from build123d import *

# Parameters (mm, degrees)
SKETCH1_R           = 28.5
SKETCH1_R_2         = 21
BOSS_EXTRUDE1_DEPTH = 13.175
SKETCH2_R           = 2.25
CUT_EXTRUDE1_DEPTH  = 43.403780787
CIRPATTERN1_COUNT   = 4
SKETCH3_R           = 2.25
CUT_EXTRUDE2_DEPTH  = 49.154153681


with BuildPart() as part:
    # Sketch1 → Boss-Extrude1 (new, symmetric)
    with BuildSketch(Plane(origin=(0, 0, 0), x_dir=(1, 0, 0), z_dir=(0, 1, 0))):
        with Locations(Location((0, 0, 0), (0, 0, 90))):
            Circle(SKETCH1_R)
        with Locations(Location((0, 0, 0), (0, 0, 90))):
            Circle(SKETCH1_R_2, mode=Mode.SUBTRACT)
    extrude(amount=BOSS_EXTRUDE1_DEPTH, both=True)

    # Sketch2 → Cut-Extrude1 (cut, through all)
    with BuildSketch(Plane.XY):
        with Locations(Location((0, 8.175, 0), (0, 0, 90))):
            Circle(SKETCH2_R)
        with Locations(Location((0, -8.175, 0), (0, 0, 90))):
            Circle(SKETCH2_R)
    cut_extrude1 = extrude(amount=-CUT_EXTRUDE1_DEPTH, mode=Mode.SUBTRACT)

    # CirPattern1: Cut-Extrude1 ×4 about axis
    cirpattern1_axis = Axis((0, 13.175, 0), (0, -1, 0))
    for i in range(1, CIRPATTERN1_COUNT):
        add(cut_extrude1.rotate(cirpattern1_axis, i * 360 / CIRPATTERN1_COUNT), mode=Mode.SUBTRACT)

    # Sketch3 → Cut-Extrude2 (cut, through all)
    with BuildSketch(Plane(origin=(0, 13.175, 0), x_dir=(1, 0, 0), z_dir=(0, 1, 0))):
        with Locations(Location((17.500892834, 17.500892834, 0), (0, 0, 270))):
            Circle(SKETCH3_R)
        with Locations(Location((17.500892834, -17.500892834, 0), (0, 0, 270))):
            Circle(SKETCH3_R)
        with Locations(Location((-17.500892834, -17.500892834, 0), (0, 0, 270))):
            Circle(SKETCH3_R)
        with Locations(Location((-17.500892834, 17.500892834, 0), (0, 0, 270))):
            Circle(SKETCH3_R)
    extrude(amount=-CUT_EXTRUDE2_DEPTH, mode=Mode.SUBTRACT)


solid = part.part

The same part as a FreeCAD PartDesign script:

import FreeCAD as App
import Part
import Sketcher
from FreeCAD import Vector

doc = App.newDocument("Part")
body = doc.addObject("PartDesign::Body", "Body")

# Sketch on XZ plane
sketch1 = doc.addObject("Sketcher::SketchObject", "Sketch")
body.addObject(sketch1)
sketch1.AttachmentSupport = (doc.XZ_Plane, [""])
sketch1.MapMode = "FlatFace"
sketch1.addGeometry(Part.Circle(Vector(0, 0, 0), Vector(0, 0, 1), 28), False)
sketch1.addGeometry(Part.Circle(Vector(0, 0, 0), Vector(0, 0, 1), 21), False)
sketch1.addConstraint(Sketcher.Constraint("Coincident", 0, 3, -1, 1))
sketch1.addConstraint(Sketcher.Constraint("Coincident", 1, 3, -1, 1))
sketch1.addConstraint(Sketcher.Constraint("Diameter", 0, 57.0))
sketch1.addConstraint(Sketcher.Constraint("Diameter", 1, 42.0))
pad1 = doc.addObject("PartDesign::Pad", "Pad")
body.addObject(pad1)
pad1.Profile = sketch1
pad1.Length = 26.35
pad1.Midplane = True

# Sketch on XY plane
sketch2 = doc.addObject("Sketcher::SketchObject", "Sketch001")
body.addObject(sketch2)
sketch2.AttachmentSupport = (doc.XY_Plane, [""])
sketch2.MapMode = "FlatFace"
sketch2.addGeometry(Part.Circle(Vector(0, 8.2, 0), Vector(0, 0, 1), 2.2), False)
sketch2.addGeometry(Part.Circle(Vector(0, -8.2, 0), Vector(0, 0, 1), 2.2), False)
sketch2.addConstraint(Sketcher.Constraint("Equal", 0, 1))
sketch2.addConstraint(Sketcher.Constraint("Symmetric", 0, 3, 1, 3, -1, 1))
sketch2.addConstraint(Sketcher.Constraint("PointOnObject", 0, 3, -2))
sketch2.addConstraint(Sketcher.Constraint("Diameter", 0, 4.5))
sketch2.addConstraint(Sketcher.Constraint("DistanceY", 1, 3, 0, 3, 16.35))
pocket1 = doc.addObject("PartDesign::Pocket", "Pocket")
body.addObject(pocket1)
pocket1.Profile = sketch2
pocket1.Type = "ThroughAll"
doc.recompute()

polarpattern = doc.addObject("PartDesign::PolarPattern", "PolarPattern")
body.addObject(polarpattern)
polarpattern.Originals = [pocket1]
polarpattern.Axis = (doc.Y_Axis, [""])
polarpattern.Angle = 360
polarpattern.Occurrences = 4
body.Tip = polarpattern

# Sketch on XZ plane
sketch3 = doc.addObject("Sketcher::SketchObject", "Sketch002")
body.addObject(sketch3)
sketch3.AttachmentSupport = (doc.XZ_Plane, [""])
sketch3.MapMode = "FlatFace"
sketch3.AttachmentOffset = App.Placement(Vector(0, 0, -13.175), App.Rotation())
sketch3.addGeometry(Part.Circle(Vector(17.5, -17.5, 0), Vector(0, 0, 1), 2.2), False)
sketch3.addGeometry(Part.Circle(Vector(17.5, 17.5, 0), Vector(0, 0, 1), 2.2), False)
sketch3.addGeometry(Part.Circle(Vector(-17.5, 17.5, 0), Vector(0, 0, 1), 2.2), False)
sketch3.addGeometry(Part.Circle(Vector(-17.5, -17.5, 0), Vector(0, 0, 1), 2.2), False)
sketch3.addConstraint(Sketcher.Constraint("Equal", 0, 1))
sketch3.addConstraint(Sketcher.Constraint("Equal", 1, 2))
sketch3.addConstraint(Sketcher.Constraint("Equal", 2, 3))
sketch3.addConstraint(Sketcher.Constraint("Symmetric", 0, 3, 2, 3, -1, 1))
sketch3.addConstraint(Sketcher.Constraint("Symmetric", 1, 3, 3, 3, -1, 1))
sketch3.addConstraint(Sketcher.Constraint("Symmetric", 1, 3, 2, 3, -2))
sketch3.addConstraint(Sketcher.Constraint("Diameter", 0, 4.5))
sketch3.addConstraint(Sketcher.Constraint("DistanceX", -1, 1, 0, 3, 17.500893))
sketch3.addConstraint(Sketcher.Constraint("DistanceY", 0, 3, -1, 1, 17.500893))
pocket2 = doc.addObject("PartDesign::Pocket", "Pocket001")
body.addObject(pocket2)
pocket2.Profile = sketch3
pocket2.Type = "ThroughAll"
pocket2.Reversed = True

doc.recompute()
